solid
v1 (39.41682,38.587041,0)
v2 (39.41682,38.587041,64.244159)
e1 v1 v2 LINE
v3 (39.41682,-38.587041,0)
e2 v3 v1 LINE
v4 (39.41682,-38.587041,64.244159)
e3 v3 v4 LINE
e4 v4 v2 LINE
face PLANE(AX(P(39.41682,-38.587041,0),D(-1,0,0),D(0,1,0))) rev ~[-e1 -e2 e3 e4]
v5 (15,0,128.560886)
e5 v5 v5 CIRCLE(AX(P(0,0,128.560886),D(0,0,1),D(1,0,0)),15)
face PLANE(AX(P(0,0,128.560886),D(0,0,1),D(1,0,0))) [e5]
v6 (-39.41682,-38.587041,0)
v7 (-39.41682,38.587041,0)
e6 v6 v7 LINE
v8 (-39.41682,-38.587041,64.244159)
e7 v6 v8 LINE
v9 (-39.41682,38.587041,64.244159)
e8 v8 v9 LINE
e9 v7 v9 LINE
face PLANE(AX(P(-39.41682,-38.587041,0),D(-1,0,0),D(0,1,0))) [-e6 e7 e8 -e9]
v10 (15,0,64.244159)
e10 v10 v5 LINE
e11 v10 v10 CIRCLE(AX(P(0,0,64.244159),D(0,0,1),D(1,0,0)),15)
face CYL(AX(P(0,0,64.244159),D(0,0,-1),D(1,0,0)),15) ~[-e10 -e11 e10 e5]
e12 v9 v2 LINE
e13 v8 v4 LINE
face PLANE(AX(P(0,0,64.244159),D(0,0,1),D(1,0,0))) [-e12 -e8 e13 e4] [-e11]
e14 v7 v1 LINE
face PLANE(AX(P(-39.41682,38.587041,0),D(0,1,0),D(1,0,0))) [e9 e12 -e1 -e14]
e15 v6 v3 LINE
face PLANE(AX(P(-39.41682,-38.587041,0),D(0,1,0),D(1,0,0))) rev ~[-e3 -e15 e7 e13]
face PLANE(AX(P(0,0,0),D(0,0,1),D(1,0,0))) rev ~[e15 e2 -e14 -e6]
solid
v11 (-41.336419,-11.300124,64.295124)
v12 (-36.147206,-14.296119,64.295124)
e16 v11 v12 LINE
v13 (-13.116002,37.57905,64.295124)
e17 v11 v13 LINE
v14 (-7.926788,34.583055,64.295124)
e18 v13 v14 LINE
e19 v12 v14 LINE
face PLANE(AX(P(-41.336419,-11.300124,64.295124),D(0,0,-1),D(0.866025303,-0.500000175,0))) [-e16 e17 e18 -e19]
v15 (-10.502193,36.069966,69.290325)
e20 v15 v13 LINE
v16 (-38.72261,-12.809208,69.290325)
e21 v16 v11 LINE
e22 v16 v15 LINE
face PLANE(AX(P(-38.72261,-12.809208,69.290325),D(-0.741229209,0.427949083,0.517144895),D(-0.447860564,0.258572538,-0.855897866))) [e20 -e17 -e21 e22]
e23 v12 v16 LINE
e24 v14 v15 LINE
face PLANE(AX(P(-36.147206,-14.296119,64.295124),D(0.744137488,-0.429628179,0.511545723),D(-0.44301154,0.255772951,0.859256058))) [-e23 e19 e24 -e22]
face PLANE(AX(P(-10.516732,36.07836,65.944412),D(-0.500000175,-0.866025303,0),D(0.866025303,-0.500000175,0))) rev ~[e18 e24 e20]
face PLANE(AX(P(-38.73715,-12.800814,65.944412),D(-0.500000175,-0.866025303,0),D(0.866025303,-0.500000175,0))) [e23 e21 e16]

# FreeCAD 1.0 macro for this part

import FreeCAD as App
import Part
import Sketcher

V = App.Vector

doc = App.newDocument("Part")
body = doc.addObject("PartDesign::Body", "Body")

# Sketch on XY plane
sketch1 = doc.addObject("Sketcher::SketchObject", "Sketch")
body.addObject(sketch1)
sketch1.AttachmentSupport = (doc.XY_Plane, [""])
sketch1.MapMode = "FlatFace"
sketch1.addGeometry([
    Part.LineSegment(V(-39, 39, 0), V(-39, -39, 0)),
    Part.LineSegment(V(-39, -39, 0), V(39, -39, 0)),
    Part.LineSegment(V(39, -39, 0), V(39, 39, 0)),
    Part.LineSegment(V(39, 39, 0), V(-39, 39, 0)),
], False)
sketch1.addConstraint([
    Sketcher.Constraint("Coincident", 0, 2, 1, 1),
    Sketcher.Constraint("Coincident", 1, 2, 2, 1),
    Sketcher.Constraint("Coincident", 2, 2, 3, 1),
    Sketcher.Constraint("Coincident", 3, 2, 0, 1),
    Sketcher.Constraint("Vertical", 0),
    Sketcher.Constraint("Horizontal", 1),
    Sketcher.Constraint("Vertical", 2),
    Sketcher.Constraint("Horizontal", 3),
    Sketcher.Constraint("Symmetric", 0, 2, 2, 2, -1, 1),
    Sketcher.Constraint("DistanceX", 1, 1, 1, 2, 78.83364),
    Sketcher.Constraint("DistanceY", 0, 2, 0, 1, 77.174082),
])
pad1 = doc.addObject("PartDesign::Pad", "Pad")
body.addObject(pad1)
pad1.Profile = sketch1
pad1.Length = 64.244159

# Sketch on XY plane
sketch2 = doc.addObject("Sketcher::SketchObject", "Sketch001")
body.addObject(sketch2)
sketch2.AttachmentSupport = (doc.XY_Plane, [""])
sketch2.MapMode = "FlatFace"
sketch2.AttachmentOffset = App.Placement(V(0, 0, 64.244159), App.Rotation())
sketch2.addGeometry(Part.Circle(V(0, 0, 0), V(0, 0, 1), 15), False)
sketch2.addConstraint([
    Sketcher.Constraint("Coincident", 0, 3, -1, 1),
    Sketcher.Constraint("Diameter", 0, 30.0),
])
pad2 = doc.addObject("PartDesign::Pad", "Pad001")
body.addObject(pad2)
pad2.Profile = sketch2
pad2.Length = 64.316727
body2 = doc.addObject("PartDesign::Body", "Body001")

# Sketch on an angled plane
sketch3 = doc.addObject("Sketcher::SketchObject", "Sketch002")
body2.addObject(sketch3)
sketch3.Placement = App.Placement(V(-15.227205, -26.374293, 0), App.Rotation(V(0.866025303, -0.500000175, 0), V(0, 0, 1), V(-0.500000175, -0.866025303, 0), "ZXY"))
sketch3.addGeometry([
    Part.LineSegment(V(-27, 69, 0), V(-30, 64, 0)),
    Part.LineSegment(V(-30, 64, 0), V(-24, 64, 0)),
    Part.LineSegment(V(-24, 64, 0), V(-27, 69, 0)),
], False)
sketch3.addConstraint([
    Sketcher.Constraint("Coincident", 0, 2, 1, 1),
    Sketcher.Constraint("Coincident", 1, 2, 2, 1),
    Sketcher.Constraint("Coincident", 2, 2, 0, 1),
    Sketcher.Constraint("Horizontal", 1),
    Sketcher.Constraint("DistanceX", 1, 1, 1, 2, 5.991988),
    Sketcher.Constraint("DistanceY", 1, 2, 2, 2, 4.995201),
    Sketcher.Constraint("Distance", 0, 5.836212),
    Sketcher.Constraint("DistanceX", 1, 2, -1, 1, 24.156339),
    Sketcher.Constraint("DistanceY", -1, 1, 0, 2, 64.295124),
])
pad3 = doc.addObject("PartDesign::Pad", "Pad002")
body2.addObject(pad3)
pad3.Profile = sketch3
pad3.Length = 56.440815
pad3.Reversed = True

doc.recompute()
